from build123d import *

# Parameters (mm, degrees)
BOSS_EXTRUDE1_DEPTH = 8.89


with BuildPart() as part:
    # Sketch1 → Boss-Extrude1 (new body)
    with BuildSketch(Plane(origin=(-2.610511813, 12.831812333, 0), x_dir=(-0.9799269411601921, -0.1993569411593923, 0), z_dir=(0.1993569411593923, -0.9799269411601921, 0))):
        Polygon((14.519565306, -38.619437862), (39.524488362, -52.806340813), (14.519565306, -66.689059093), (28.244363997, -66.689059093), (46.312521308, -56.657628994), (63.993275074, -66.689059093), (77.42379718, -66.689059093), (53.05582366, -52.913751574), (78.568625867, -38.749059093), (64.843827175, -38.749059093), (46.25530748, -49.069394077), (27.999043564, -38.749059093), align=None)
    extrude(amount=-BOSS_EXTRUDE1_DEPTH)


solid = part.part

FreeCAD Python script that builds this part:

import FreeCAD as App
import Part
import Sketcher
from FreeCAD import Vector
Q = App.Units.Quantity

doc = App.newDocument("Part")
params = doc.addObject("Spreadsheet::Sheet", "Params")
for row, (alias, value) in enumerate([
    ("pad1_length", "0.35 in"),
], start=1):
    params.set(f"A{row}", alias)
    params.set(f"B{row}", "=" + value)
    params.setAlias(f"B{row}", alias)

body = doc.addObject("PartDesign::Body", "Body")

# Sketch on an angled plane
sketch1 = doc.addObject("Sketcher::SketchObject", "Sketch")
body.addObject(sketch1)
sketch1.Placement = App.Placement(Vector(-2.610512, 12.831812, 0), App.Rotation(Vector(-0.979926941, -0.199356941, 0), Vector(0, 0, -1), Vector(0.199356941, -0.979926941, 0), "ZXY"))
sketch1.addGeometry(Part.LineSegment(Vector(15, -39, 0), Vector(40, -53, 0)), False)
sketch1.addGeometry(Part.LineSegment(Vector(40, -53, 0), Vector(15, -67, 0)), False)
sketch1.addGeometry(Part.LineSegment(Vector(15, -67, 0), Vector(28, -67, 0)), False)
sketch1.addGeometry(Part.LineSegment(Vector(28, -67, 0), Vector(46, -57, 0)), False)
sketch1.addGeometry(Part.LineSegment(Vector(46, -57, 0), Vector(64, -67, 0)), False)
sketch1.addGeometry(Part.LineSegment(Vector(64, -67, 0), Vector(77, -67, 0)), False)
sketch1.addGeometry(Part.LineSegment(Vector(77, -67, 0), Vector(53, -53, 0)), False)
sketch1.addGeometry(Part.LineSegment(Vector(53, -53, 0), Vector(79, -39, 0)), False)
sketch1.addGeometry(Part.LineSegment(Vector(79, -39, 0), Vector(65, -39, 0)), False)
sketch1.addGeometry(Part.LineSegment(Vector(65, -39, 0), Vector(46, -49, 0)), False)
sketch1.addGeometry(Part.LineSegment(Vector(46, -49, 0), Vector(28, -39, 0)), False)
sketch1.addGeometry(Part.LineSegment(Vector(28, -39, 0), Vector(15, -39, 0)), False)
sketch1.addConstraint(Sketcher.Constraint("Coincident", 0, 2, 1, 1))
sketch1.addConstraint(Sketcher.Constraint("Coincident", 1, 2, 2, 1))
sketch1.addConstraint(Sketcher.Constraint("Coincident", 2, 2, 3, 1))
sketch1.addConstraint(Sketcher.Constraint("Coincident", 3, 2, 4, 1))
sketch1.addConstraint(Sketcher.Constraint("Coincident", 4, 2, 5, 1))
sketch1.addConstraint(Sketcher.Constraint("Coincident", 5, 2, 6, 1))
sketch1.addConstraint(Sketcher.Constraint("Coincident", 6, 2, 7, 1))
sketch1.addConstraint(Sketcher.Constraint("Coincident", 7, 2, 8, 1))
sketch1.addConstraint(Sketcher.Constraint("Coincident", 8, 2, 9, 1))
sketch1.addConstraint(Sketcher.Constraint("Coincident", 9, 2, 10, 1))
sketch1.addConstraint(Sketcher.Constraint("Coincident", 10, 2, 11, 1))
sketch1.addConstraint(Sketcher.Constraint("Coincident", 11, 2, 0, 1))
sketch1.addConstraint(Sketcher.Constraint("Horizontal", 2))
sketch1.addConstraint(Sketcher.Constraint("Horizontal", 5))
sketch1.addConstraint(Sketcher.Constraint("Horizontal", 8))
sketch1.addConstraint(Sketcher.Constraint("Parallel", 1, 3))
sketch1.addConstraint(Sketcher.Constraint("Parallel", 0, 4))
sketch1.addConstraint(Sketcher.Constraint("Parallel", 3, 7))
sketch1.addConstraint(Sketcher.Constraint("Parallel", 7, 9))
sketch1.addConstraint(Sketcher.Constraint("Parallel", 6, 10))
sketch1.addConstraint(Sketcher.Constraint("Horizontal", 2, 2, 4, 2))
sketch1.addConstraint(Sketcher.Constraint("Horizontal", 8, 2, 10, 2))
sketch1.addConstraint(Sketcher.Constraint("Vertical", 1, 2, 11, 2))
sketch1.addConstraint(Sketcher.Constraint("Equal", 2, 8))
sketch1.addConstraint(Sketcher.Constraint("DistanceY", 5, 2, 7, 2, Q("1.1 in")))
sketch1.addConstraint(Sketcher.Constraint("DistanceX", 2, 1, 2, 2, 13.724799))
sketch1.addConstraint(Sketcher.Constraint("Distance", 11, 13.480101))
sketch1.addConstraint(Sketcher.Constraint("Distance", 1, 28.60028))
sketch1.addConstraint(Sketcher.Constraint("Distance", 9, 21.261288))
sketch1.addConstraint(Sketcher.Constraint("Distance", 10, 20.971421))
sketch1.addConstraint(Sketcher.Constraint("DistanceX", 5, 1, 5, 2, 13.430522))
sketch1.addConstraint(Sketcher.Constraint("DistanceX", -1, 1, 0, 2, 39.524488))
sketch1.addConstraint(Sketcher.Constraint("DistanceY", 0, 2, -1, 1, 52.806341))
sketch1.addConstraint(Sketcher.Constraint("DistanceY", 1, 2, -1, 1, 66.689059))
sketch1.addConstraint(Sketcher.Constraint("DistanceX", -1, 1, 3, 2, 46.312521))
sketch1.addConstraint(Sketcher.Constraint("DistanceY", 6, 2, -1, 1, 52.913752))
pad1 = doc.addObject("PartDesign::Pad", "Pad")
body.addObject(pad1)
pad1.Profile = sketch1
pad1.setExpression("Length", "Params.pad1_length")
pad1.Reversed = True

doc.recompute()
